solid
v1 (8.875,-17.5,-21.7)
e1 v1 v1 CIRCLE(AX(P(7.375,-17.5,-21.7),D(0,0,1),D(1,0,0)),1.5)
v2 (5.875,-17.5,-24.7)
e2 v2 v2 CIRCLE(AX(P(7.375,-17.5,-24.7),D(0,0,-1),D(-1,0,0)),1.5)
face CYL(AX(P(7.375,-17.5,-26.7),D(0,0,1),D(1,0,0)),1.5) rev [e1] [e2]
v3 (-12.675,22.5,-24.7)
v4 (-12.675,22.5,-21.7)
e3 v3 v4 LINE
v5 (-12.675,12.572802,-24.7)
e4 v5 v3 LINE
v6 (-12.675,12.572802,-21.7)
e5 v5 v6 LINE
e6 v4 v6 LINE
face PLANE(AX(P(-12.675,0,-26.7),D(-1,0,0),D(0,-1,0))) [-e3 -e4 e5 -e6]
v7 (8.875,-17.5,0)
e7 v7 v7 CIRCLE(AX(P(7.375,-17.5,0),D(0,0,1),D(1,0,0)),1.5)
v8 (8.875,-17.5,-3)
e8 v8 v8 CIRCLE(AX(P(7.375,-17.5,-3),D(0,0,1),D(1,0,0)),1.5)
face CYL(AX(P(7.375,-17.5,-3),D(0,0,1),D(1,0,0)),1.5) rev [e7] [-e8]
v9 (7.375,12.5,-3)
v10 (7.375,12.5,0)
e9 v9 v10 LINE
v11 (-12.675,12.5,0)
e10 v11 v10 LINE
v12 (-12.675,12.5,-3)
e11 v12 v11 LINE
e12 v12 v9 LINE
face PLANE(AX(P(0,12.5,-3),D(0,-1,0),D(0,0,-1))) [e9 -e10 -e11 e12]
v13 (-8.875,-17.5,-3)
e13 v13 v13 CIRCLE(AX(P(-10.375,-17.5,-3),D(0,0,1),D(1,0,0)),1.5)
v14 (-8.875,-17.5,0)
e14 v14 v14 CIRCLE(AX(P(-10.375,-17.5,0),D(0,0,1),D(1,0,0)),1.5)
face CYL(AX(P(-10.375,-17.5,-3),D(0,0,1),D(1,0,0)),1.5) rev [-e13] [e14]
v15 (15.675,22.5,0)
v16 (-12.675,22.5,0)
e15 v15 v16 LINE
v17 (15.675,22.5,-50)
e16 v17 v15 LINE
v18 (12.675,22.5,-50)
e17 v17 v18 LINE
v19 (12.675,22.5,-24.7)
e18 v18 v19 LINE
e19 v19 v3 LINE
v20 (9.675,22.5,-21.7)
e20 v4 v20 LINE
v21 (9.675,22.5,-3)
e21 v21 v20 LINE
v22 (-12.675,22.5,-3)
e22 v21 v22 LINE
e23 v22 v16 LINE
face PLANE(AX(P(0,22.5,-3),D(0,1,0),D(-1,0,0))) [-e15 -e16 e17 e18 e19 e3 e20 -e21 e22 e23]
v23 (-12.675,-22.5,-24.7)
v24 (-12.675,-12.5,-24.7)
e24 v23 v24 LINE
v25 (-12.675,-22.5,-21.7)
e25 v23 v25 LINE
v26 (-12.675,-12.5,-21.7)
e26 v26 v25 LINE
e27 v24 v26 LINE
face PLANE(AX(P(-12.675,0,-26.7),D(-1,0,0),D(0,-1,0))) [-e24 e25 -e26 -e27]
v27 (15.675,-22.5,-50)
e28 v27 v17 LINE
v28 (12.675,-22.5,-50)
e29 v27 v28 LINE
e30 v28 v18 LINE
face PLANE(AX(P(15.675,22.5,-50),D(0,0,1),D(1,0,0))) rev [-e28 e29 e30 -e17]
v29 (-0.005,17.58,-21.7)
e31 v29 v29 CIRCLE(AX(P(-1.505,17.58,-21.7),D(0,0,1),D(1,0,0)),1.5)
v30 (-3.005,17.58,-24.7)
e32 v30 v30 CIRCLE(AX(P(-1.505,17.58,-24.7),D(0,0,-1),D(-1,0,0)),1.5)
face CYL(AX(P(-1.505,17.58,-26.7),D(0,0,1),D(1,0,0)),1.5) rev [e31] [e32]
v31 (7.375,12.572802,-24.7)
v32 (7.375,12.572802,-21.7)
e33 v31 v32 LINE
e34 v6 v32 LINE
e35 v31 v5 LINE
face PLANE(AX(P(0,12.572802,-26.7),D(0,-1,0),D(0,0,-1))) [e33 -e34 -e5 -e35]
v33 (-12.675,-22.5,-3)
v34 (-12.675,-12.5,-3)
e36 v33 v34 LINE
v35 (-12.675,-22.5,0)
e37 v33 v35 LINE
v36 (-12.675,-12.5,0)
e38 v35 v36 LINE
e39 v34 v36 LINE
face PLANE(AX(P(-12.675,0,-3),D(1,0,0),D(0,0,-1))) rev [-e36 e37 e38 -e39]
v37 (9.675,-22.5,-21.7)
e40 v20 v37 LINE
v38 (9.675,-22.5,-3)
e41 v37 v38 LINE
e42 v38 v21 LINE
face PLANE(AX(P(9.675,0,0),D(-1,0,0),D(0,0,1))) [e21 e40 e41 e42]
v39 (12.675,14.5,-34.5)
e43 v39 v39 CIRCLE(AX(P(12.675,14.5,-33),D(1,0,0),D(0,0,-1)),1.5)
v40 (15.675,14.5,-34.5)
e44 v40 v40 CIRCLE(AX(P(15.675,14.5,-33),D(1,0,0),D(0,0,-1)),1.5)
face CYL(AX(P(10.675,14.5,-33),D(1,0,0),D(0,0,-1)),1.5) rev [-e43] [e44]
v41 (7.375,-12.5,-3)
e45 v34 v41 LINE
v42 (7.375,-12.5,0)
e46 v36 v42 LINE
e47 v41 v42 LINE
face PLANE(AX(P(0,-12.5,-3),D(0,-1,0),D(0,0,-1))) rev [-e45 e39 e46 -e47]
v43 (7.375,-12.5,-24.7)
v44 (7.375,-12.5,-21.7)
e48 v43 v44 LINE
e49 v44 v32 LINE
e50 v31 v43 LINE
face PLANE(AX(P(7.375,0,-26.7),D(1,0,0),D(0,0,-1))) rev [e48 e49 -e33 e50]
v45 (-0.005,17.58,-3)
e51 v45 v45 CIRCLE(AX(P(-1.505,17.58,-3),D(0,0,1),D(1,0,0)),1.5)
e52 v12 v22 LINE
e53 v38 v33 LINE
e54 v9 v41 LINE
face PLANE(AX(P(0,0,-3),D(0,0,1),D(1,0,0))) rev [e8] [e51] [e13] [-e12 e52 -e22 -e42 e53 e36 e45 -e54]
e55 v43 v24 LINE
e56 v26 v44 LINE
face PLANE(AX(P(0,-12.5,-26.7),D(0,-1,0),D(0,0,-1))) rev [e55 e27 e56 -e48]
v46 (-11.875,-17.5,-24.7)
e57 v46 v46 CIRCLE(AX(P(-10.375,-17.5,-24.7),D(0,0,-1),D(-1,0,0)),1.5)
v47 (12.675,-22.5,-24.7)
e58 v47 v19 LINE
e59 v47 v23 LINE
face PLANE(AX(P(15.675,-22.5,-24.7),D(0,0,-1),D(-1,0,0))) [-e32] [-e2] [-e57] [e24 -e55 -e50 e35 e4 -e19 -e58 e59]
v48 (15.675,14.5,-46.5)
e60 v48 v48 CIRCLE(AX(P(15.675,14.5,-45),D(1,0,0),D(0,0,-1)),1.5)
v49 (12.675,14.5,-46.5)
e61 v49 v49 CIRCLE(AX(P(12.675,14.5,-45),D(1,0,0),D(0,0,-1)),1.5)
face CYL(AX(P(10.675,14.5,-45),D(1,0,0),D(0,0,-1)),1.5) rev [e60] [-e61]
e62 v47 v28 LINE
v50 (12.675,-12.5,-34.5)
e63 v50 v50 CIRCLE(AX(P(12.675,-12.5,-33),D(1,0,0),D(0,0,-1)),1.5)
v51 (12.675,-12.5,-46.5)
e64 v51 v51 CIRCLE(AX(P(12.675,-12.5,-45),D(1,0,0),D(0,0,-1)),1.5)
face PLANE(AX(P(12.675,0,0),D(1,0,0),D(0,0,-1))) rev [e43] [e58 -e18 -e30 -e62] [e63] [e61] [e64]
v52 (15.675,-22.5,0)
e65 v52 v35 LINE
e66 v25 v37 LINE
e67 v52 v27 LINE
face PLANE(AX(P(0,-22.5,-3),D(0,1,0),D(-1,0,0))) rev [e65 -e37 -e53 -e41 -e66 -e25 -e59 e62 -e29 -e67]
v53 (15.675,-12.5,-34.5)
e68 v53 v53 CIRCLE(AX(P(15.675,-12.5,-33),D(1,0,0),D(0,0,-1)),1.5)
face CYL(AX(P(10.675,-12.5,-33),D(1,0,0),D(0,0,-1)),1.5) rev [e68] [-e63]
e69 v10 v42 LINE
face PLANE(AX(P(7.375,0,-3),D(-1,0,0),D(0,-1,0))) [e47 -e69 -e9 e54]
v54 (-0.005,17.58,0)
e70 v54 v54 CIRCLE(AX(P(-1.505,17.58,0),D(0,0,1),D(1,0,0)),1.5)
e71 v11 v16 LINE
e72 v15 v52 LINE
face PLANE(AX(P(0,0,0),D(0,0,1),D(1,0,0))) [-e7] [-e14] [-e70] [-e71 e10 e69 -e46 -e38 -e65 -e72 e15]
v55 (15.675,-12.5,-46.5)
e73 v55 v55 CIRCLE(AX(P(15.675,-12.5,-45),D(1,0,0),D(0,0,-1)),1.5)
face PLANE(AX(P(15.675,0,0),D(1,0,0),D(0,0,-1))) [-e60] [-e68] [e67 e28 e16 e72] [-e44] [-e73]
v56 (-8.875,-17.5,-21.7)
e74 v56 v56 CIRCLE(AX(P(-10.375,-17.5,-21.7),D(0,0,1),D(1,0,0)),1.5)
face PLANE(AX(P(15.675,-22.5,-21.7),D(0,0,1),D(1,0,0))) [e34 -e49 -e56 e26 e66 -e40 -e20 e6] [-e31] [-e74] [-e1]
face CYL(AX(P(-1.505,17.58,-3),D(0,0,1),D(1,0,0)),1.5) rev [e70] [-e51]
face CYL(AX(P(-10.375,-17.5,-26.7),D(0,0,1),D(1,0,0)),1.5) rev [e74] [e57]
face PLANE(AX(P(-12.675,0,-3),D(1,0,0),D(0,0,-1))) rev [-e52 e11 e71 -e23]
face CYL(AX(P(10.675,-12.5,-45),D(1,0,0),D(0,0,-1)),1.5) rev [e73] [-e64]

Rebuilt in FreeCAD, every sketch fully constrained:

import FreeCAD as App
import Part
import Sketcher
Q = App.Units.Quantity

doc = App.newDocument("Part")
body = doc.addObject("PartDesign::Body", "Body")

sketch1 = doc.addObject("Sketcher::SketchObject", "Sketch")
body.addObject(sketch1)
sketch1.AttachmentSupport = (doc.XY_Plane, [""])
sketch1.MapMode = "FlatFace"
sketch1.addGeometry([
    Part.LineSegment(App.Vector(7.4, 12.5, 0), App.Vector(7.4, -12.5, 0)),
    Part.LineSegment(App.Vector(7.4, -12.5, 0), App.Vector(-12.7, -12.5, 0)),
    Part.LineSegment(App.Vector(-12.7, -12.5, 0), App.Vector(-12.7, -22.5, 0)),
    Part.LineSegment(App.Vector(-12.7, -22.5, 0), App.Vector(12.7, -22.5, 0)),
    Part.LineSegment(App.Vector(12.7, -22.5, 0), App.Vector(12.7, 22.5, 0)),
    Part.LineSegment(App.Vector(12.7, 22.5, 0), App.Vector(-12.7, 22.5, 0)),
    Part.LineSegment(App.Vector(-12.7, 22.5, 0), App.Vector(-12.7, 12.5, 0)),
    Part.LineSegment(App.Vector(-12.7, 12.5, 0), App.Vector(7.4, 12.5, 0)),
    Part.Circle(App.Vector(7.4, -17.5, 0), App.Vector(0, 0, 1), 1.5),
    Part.Circle(App.Vector(-10.4, -17.5, 0), App.Vector(0, 0, 1), 1.5),
    Part.Circle(App.Vector(-1.5, 17.6, 0), App.Vector(0, 0, 1), 1.5),
], False)
sketch1.addConstraint([
    Sketcher.Constraint("Coincident", 0, 2, 1, 1),
    Sketcher.Constraint("Coincident", 1, 2, 2, 1),
    Sketcher.Constraint("Coincident", 2, 2, 3, 1),
    Sketcher.Constraint("Coincident", 3, 2, 4, 1),
    Sketcher.Constraint("Coincident", 4, 2, 5, 1),
    Sketcher.Constraint("Coincident", 5, 2, 6, 1),
    Sketcher.Constraint("Coincident", 6, 2, 7, 1),
    Sketcher.Constraint("Coincident", 7, 2, 0, 1),
    Sketcher.Constraint("Vertical", 0),
    Sketcher.Constraint("Horizontal", 1),
    Sketcher.Constraint("Vertical", 2),
    Sketcher.Constraint("Horizontal", 3),
    Sketcher.Constraint("Vertical", 4),
    Sketcher.Constraint("Horizontal", 5),
    Sketcher.Constraint("Vertical", 6),
    Sketcher.Constraint("Horizontal", 7),
    Sketcher.Constraint("Equal", 8, 9),
    Sketcher.Constraint("Equal", 9, 10),
    Sketcher.Constraint("Symmetric", 2, 2, 4, 2, -1, 1),
    Sketcher.Constraint("Symmetric", 1, 2, 6, 2, -1),
    Sketcher.Constraint("Horizontal", 8, 3, 9, 3),
    Sketcher.Constraint("Vertical", 8, 3, 0, 2),
    Sketcher.Constraint("Diameter", 8, Q("3 mm")),
    Sketcher.Constraint("DistanceY", 0, 2, 0, 1, Q("25 mm")),
    Sketcher.Constraint("DistanceY", 2, 2, 2, 1, Q("10 mm")),
    Sketcher.Constraint("DistanceY", 8, 3, 0, 2, Q("5 mm")),
    Sketcher.Constraint("DistanceX", 1, 2, 1, 1, Q("20.05 mm")),
    Sketcher.Constraint("DistanceX", 3, 1, 3, 2, Q("25.35 mm")),
    Sketcher.Constraint("DistanceX", 1, 2, 9, 3, Q("2.3 mm")),
    Sketcher.Constraint("DistanceY", -1, 1, 10, 3, Q("17.58 mm")),
    Sketcher.Constraint("DistanceX", 9, 3, 10, 3, Q("8.87 mm")),
])
pad1 = doc.addObject("PartDesign::Pad", "Pad")
body.addObject(pad1)
pad1.Profile = sketch1
pad1.Length = 3
pad1.Reversed = True

sketch2 = doc.addObject("Sketcher::SketchObject", "Sketch001")
body.addObject(sketch2)
sketch2.AttachmentSupport = (doc.YZ_Plane, [""])
sketch2.MapMode = "FlatFace"
sketch2.AttachmentOffset = App.Placement(App.Vector(0, 0, 12.675), App.Rotation())
sketch2.addGeometry([
    Part.LineSegment(App.Vector(22, 0, 0), App.Vector(-22, 0, 0)),
    Part.LineSegment(App.Vector(-22, 0, 0), App.Vector(-22, -50, 0)),
    Part.LineSegment(App.Vector(-22, -50, 0), App.Vector(22, -50, 0)),
    Part.LineSegment(App.Vector(22, -50, 0), App.Vector(22, 0, 0)),
], False)
sketch2.addConstraint([
    Sketcher.Constraint("Coincident", 0, 2, 1, 1),
    Sketcher.Constraint("Coincident", 1, 2, 2, 1),
    Sketcher.Constraint("Coincident", 2, 2, 3, 1),
    Sketcher.Constraint("Coincident", 3, 2, 0, 1),
    Sketcher.Constraint("Horizontal", 0),
    Sketcher.Constraint("Vertical", 1),
    Sketcher.Constraint("Horizontal", 2),
    Sketcher.Constraint("Vertical", 3),
    Sketcher.Constraint("Symmetric", 0, 2, 3, 2, -1, 1),
    Sketcher.Constraint("DistanceX", 0, 2, 0, 1, Q("45 mm")),
    Sketcher.Constraint("DistanceY", 1, 2, 1, 1, Q("50 mm")),
])
pad2 = doc.addObject("PartDesign::Pad", "Pad001")
body.addObject(pad2)
pad2.Profile = sketch2
pad2.Length = 3

sketch3 = doc.addObject("Sketcher::SketchObject", "Sketch002")
body.addObject(sketch3)
sketch3.AttachmentSupport = (doc.XZ_Plane, [""])
sketch3.MapMode = "FlatFace"
sketch3.AttachmentOffset = App.Placement(App.Vector(0, 0, -22.5), App.Rotation())
sketch3.addGeometry([
    Part.LineSegment(App.Vector(-22.7, -24.7, 0), App.Vector(-22.7, -21.7, 0)),
    Part.LineSegment(App.Vector(-22.7, -21.7, 0), App.Vector(15.7, -21.7, 0)),
    Part.LineSegment(App.Vector(15.7, -21.7, 0), App.Vector(15.7, -24.7, 0)),
    Part.LineSegment(App.Vector(15.7, -24.7, 0), App.Vector(-22.7, -24.7, 0)),
], False)
sketch3.addConstraint([
    Sketcher.Constraint("Coincident", 0, 2, 1, 1),
    Sketcher.Constraint("Coincident", 1, 2, 2, 1),
    Sketcher.Constraint("Coincident", 2, 2, 3, 1),
    Sketcher.Constraint("Coincident", 3, 2, 0, 1),
    Sketcher.Constraint("Vertical", 0),
    Sketcher.Constraint("Horizontal", 1),
    Sketcher.Constraint("Vertical", 2),
    Sketcher.Constraint("Horizontal", 3),
    Sketcher.Constraint("DistanceY", 0, 1, 0, 2, Q("3 mm")),
    Sketcher.Constraint("DistanceX", 1, 1, 1, 2, Q("38.35 mm")),
    Sketcher.Constraint("DistanceY", 0, 2, -1, 1, Q("21.7 mm")),
    Sketcher.Constraint("DistanceX", 0, 2, -1, 1, Q("22.675 mm")),
])
pad3 = doc.addObject("PartDesign::Pad", "Pad002")
body.addObject(pad3)
pad3.Profile = sketch3
pad3.Length = 45

sketch4 = doc.addObject("Sketcher::SketchObject", "Sketch003")
body.addObject(sketch4)
sketch4.AttachmentSupport = (doc.XY_Plane, [""])
sketch4.MapMode = "FlatFace"
sketch4.AttachmentOffset = App.Placement(App.Vector(0, 0, -21.7), App.Rotation())
sketch4.addGeometry([
    Part.LineSegment(App.Vector(-13, 13, 0), App.Vector(-13, 22, 0)),
    Part.LineSegment(App.Vector(-13, 22, 0), App.Vector(-23, 22, 0)),
    Part.LineSegment(App.Vector(-23, 22, 0), App.Vector(-23, -22, 0)),
    Part.LineSegment(App.Vector(-23, -22, 0), App.Vector(-13, -22, 0)),
    Part.LineSegment(App.Vector(-13, -22, 0), App.Vector(-13, -12, 0)),
    Part.LineSegment(App.Vector(-13, -12, 0), App.Vector(7, -12, 0)),
    Part.LineSegment(App.Vector(7, -12, 0), App.Vector(7, 13, 0)),
    Part.LineSegment(App.Vector(7, 13, 0), App.Vector(-13, 13, 0)),
], False)
sketch4.addConstraint([
    Sketcher.Constraint("Coincident", 0, 2, 1, 1),
    Sketcher.Constraint("Coincident", 1, 2, 2, 1),
    Sketcher.Constraint("Coincident", 2, 2, 3, 1),
    Sketcher.Constraint("Coincident", 3, 2, 4, 1),
    Sketcher.Constraint("Coincident", 4, 2, 5, 1),
    Sketcher.Constraint("Coincident", 5, 2, 6, 1),
    Sketcher.Constraint("Coincident", 6, 2, 7, 1),
    Sketcher.Constraint("Coincident", 7, 2, 0, 1),
    Sketcher.Constraint("Vertical", 0),
    Sketcher.Constraint("Horizontal", 1),
    Sketcher.Constraint("Vertical", 2),
    Sketcher.Constraint("Horizontal", 3),
    Sketcher.Constraint("Vertical", 4),
    Sketcher.Constraint("Horizontal", 5),
    Sketcher.Constraint("Vertical", 6),
    Sketcher.Constraint("Horizontal", 7),
    Sketcher.Constraint("Symmetric", 0, 2, 3, 2, -1),
    Sketcher.Constraint("Equal", 3, 4),
    Sketcher.Constraint("DistanceX", 1, 2, 1, 1, Q("10 mm")),
    Sketcher.Constraint("DistanceY", 2, 2, 2, 1, Q("45 mm")),
    Sketcher.Constraint("DistanceX", 5, 1, 5, 2, Q("20.05 mm")),
    Sketcher.Constraint("DistanceX", 0, 2, -1, 1, Q("12.675 mm")),
    Sketcher.Constraint("DistanceY", 0, 1, 0, 2, Q("9.927198 mm")),
])
pocket1 = doc.addObject("PartDesign::Pocket", "Pocket")
body.addObject(pocket1)
pocket1.Profile = sketch4
pocket1.Length = 5

sketch5 = doc.addObject("Sketcher::SketchObject", "Sketch004")
body.addObject(sketch5)
sketch5.AttachmentSupport = (doc.XY_Plane, [""])
sketch5.MapMode = "FlatFace"
sketch5.AttachmentOffset = App.Placement(App.Vector(0, 0, -21.7), App.Rotation())
sketch5.addGeometry([
    Part.Circle(App.Vector(-1.5, 17.6, 0), App.Vector(0, 0, 1), 1.5),
    Part.Circle(App.Vector(-10.4, -17.5, 0), App.Vector(0, 0, 1), 1.5),
    Part.Circle(App.Vector(7.4, -17.5, 0), App.Vector(0, 0, 1), 1.5),
], False)
sketch5.addConstraint([
    Sketcher.Constraint("Equal", 0, 1),
    Sketcher.Constraint("Equal", 1, 2),
    Sketcher.Constraint("Horizontal", 1, 3, 2, 3),
    Sketcher.Constraint("Diameter", 0, Q("3 mm")),
    Sketcher.Constraint("DistanceY", 1, 3, -1, 1, Q("17.5 mm")),
    Sketcher.Constraint("DistanceY", -1, 1, 0, 3, Q("17.58 mm")),
    Sketcher.Constraint("DistanceX", 1, 3, 0, 3, Q("8.87 mm")),
    Sketcher.Constraint("DistanceX", 1, 3, 2, 3, Q("17.75 mm")),
    Sketcher.Constraint("DistanceX", 0, 3, -1, 1, Q("1.505 mm")),
])
pocket2 = doc.addObject("PartDesign::Pocket", "Pocket001")
body.addObject(pocket2)
pocket2.Profile = sketch5
pocket2.Length = 5

sketch6 = doc.addObject("Sketcher::SketchObject", "Sketch005")
body.addObject(sketch6)
sketch6.AttachmentSupport = (doc.YZ_Plane, [""])
sketch6.MapMode = "FlatFace"
sketch6.AttachmentOffset = App.Placement(App.Vector(0, 0, 15.675), App.Rotation())
sketch6.addGeometry([
    Part.Circle(App.Vector(14.5, -33, 0), App.Vector(0, 0, 1), 1.5),
    Part.Circle(App.Vector(14.5, -45, 0), App.Vector(0, 0, 1), 1.5),
    Part.Circle(App.Vector(-12.5, -33, 0), App.Vector(0, 0, 1), 1.5),
    Part.Circle(App.Vector(-12.5, -45, 0), App.Vector(0, 0, 1), 1.5),
], False)
sketch6.addConstraint([
    Sketcher.Constraint("Equal", 0, 1),
    Sketcher.Constraint("Equal", 1, 2),
    Sketcher.Constraint("Equal", 2, 3),
    Sketcher.Constraint("Horizontal", 0, 3, 2, 3),
    Sketcher.Constraint("Horizontal", 1, 3, 3, 3),
    Sketcher.Constraint("Vertical", 0, 3, 1, 3),
    Sketcher.Constraint("Vertical", 2, 3, 3, 3),
    Sketcher.Constraint("Diameter", 0, Q("3 mm")),
    Sketcher.Constraint("DistanceY", 0, 3, -1, 1, Q("33 mm")),
    Sketcher.Constraint("DistanceY", 1, 3, -1, 1, Q("45 mm")),
    Sketcher.Constraint("DistanceX", 2, 3, 0, 3, Q("27 mm")),
    Sketcher.Constraint("DistanceX", -1, 1, 0, 3, Q("14.5 mm")),
])
pocket3 = doc.addObject("PartDesign::Pocket", "Pocket002")
body.addObject(pocket3)
pocket3.Profile = sketch6
pocket3.Length = 5

sketch7 = doc.addObject("Sketcher::SketchObject", "Sketch006")
body.addObject(sketch7)
sketch7.AttachmentSupport = (doc.YZ_Plane, [""])
sketch7.MapMode = "FlatFace"
sketch7.AttachmentOffset = App.Placement(App.Vector(0, 0, 12.675), App.Rotation())
sketch7.addGeometry([
    Part.LineSegment(App.Vector(22, -22, 0), App.Vector(-22, -22, 0)),
    Part.LineSegment(App.Vector(-22, -22, 0), App.Vector(-22, -3, 0)),
    Part.LineSegment(App.Vector(-22, -3, 0), App.Vector(22, -3, 0)),
    Part.LineSegment(App.Vector(22, -3, 0), App.Vector(22, -22, 0)),
], False)
sketch7.addConstraint([
    Sketcher.Constraint("Coincident", 0, 2, 1, 1),
    Sketcher.Constraint("Coincident", 1, 2, 2, 1),
    Sketcher.Constraint("Coincident", 2, 2, 3, 1),
    Sketcher.Constraint("Coincident", 3, 2, 0, 1),
    Sketcher.Constraint("Horizontal", 0),
    Sketcher.Constraint("Vertical", 1),
    Sketcher.Constraint("Horizontal", 2),
    Sketcher.Constraint("Vertical", 3),
    Sketcher.Constraint("DistanceX", 0, 2, 0, 1, Q("45 mm")),
    Sketcher.Constraint("DistanceY", 1, 1, 1, 2, Q("18.7 mm")),
    Sketcher.Constraint("DistanceY", 1, 2, -1, 1, Q("3 mm")),
    Sketcher.Constraint("DistanceX", 0, 2, -1, 1, Q("22.5 mm")),
])
pad4 = doc.addObject("PartDesign::Pad", "Pad003")
body.addObject(pad4)
pad4.Profile = sketch7
pad4.Length = 3
pad4.Reversed = True

doc.recompute()
